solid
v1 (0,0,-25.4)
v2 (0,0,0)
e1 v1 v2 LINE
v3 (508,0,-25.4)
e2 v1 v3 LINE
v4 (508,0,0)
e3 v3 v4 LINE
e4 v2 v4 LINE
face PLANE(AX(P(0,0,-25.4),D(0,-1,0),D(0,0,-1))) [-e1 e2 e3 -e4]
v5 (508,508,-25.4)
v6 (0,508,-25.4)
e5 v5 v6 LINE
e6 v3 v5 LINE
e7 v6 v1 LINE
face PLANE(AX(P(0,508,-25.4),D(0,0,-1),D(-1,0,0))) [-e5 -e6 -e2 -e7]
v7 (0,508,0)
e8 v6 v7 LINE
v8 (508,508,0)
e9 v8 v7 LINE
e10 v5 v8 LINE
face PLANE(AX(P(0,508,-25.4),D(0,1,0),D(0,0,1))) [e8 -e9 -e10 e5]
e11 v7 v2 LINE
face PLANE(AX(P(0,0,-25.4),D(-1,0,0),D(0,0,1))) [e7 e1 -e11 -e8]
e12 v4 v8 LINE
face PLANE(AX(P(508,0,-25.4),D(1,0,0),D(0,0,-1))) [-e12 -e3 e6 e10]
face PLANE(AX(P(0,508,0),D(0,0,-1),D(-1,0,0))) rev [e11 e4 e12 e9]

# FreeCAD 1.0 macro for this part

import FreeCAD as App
import Part
import Sketcher

V = App.Vector
Q = App.Units.Quantity

doc = App.newDocument("Part")
body = doc.addObject("PartDesign::Body", "Body")

# Sketch on XY plane
sketch1 = body.newObject("Sketcher::SketchObject", "Sketch")
sketch1.AttachmentSupport = (doc.getObject("XY_Plane"), [""])
sketch1.MapMode = "FlatFace"
sketch1.addGeometry(Part.LineSegment(V(0, 508, 0), V(0, 0, 0)), False)
sketch1.addGeometry(Part.LineSegment(V(0, 0, 0), V(508, 0, 0)), False)
sketch1.addGeometry(Part.LineSegment(V(508, 0, 0), V(508, 508, 0)), False)
sketch1.addGeometry(Part.LineSegment(V(508, 508, 0), V(0, 508, 0)), False)
sketch1.addConstraint(Sketcher.Constraint("Coincident", 0, 2, 1, 1))
sketch1.addConstraint(Sketcher.Constraint("Coincident", 1, 2, 2, 1))
sketch1.addConstraint(Sketcher.Constraint("Coincident", 2, 2, 3, 1))
sketch1.addConstraint(Sketcher.Constraint("Coincident", 3, 2, 0, 1))
sketch1.addConstraint(Sketcher.Constraint("Vertical", 0))
sketch1.addConstraint(Sketcher.Constraint("Horizontal", 1))
sketch1.addConstraint(Sketcher.Constraint("Vertical", 2))
sketch1.addConstraint(Sketcher.Constraint("Horizontal", 3))
sketch1.addConstraint(Sketcher.Constraint("Coincident", 0, 2, -1, 1))
sketch1.addConstraint(Sketcher.Constraint("Equal", 3, 0))
sketch1.addConstraint(Sketcher.Constraint("DistanceX", 1, 1, 1, 2, Q("20 in")))
pad1 = body.newObject("PartDesign::Pad", "Pad")
pad1.Profile = sketch1
pad1.Length = Q("1 in")
pad1.Reversed = True

doc.recompute()
